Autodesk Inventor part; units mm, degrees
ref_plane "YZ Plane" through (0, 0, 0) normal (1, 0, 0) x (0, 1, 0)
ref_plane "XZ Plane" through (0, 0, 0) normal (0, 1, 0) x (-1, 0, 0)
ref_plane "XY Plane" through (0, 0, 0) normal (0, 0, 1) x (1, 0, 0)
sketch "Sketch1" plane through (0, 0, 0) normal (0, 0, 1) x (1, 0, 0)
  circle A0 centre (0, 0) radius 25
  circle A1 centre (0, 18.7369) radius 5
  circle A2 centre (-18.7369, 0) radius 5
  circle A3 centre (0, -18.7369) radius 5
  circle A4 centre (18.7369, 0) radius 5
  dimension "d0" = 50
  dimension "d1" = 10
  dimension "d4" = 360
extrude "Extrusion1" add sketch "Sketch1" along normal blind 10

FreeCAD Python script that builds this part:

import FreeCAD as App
import Part
import Sketcher
from FreeCAD import Vector
Q = App.Units.Quantity

doc = App.newDocument("Part")
body = doc.addObject("PartDesign::Body", "Body")

sketch1 = body.newObject("Sketcher::SketchObject", "Sketch")
sketch1.AttachmentSupport = (doc.getObject("XY_Plane"), [""])
sketch1.MapMode = "FlatFace"
sketch1.addGeometry(Part.Circle(Vector(0, 0, 0), Vector(0, 0, 1), 25), False)
sketch1.addGeometry(Part.Circle(Vector(0, -18.7369, 0), Vector(0, 0, 1), 5), False)
sketch1.addGeometry(Part.Circle(Vector(-18.7369, 0, 0), Vector(0, 0, 1), 5), False)
sketch1.addGeometry(Part.Circle(Vector(18.7369, 0, 0), Vector(0, 0, 1), 5), False)
sketch1.addGeometry(Part.Circle(Vector(0, 18.7369, 0), Vector(0, 0, 1), 5), False)
sketch1.addConstraint(Sketcher.Constraint("Coincident", 0, 3, -1, 1))
sketch1.addConstraint(Sketcher.Constraint("Equal", 1, 2))
sketch1.addConstraint(Sketcher.Constraint("Equal", 2, 3))
sketch1.addConstraint(Sketcher.Constraint("Equal", 3, 4))
sketch1.addConstraint(Sketcher.Constraint("Symmetric", 2, 3, 3, 3, -1, 1))
sketch1.addConstraint(Sketcher.Constraint("Symmetric", 1, 3, 4, 3, -1, 1))
sketch1.addConstraint(Sketcher.Constraint("PointOnObject", 1, 3, -2))
sketch1.addConstraint(Sketcher.Constraint("PointOnObject", 2, 3, -1))
sketch1.addConstraint(Sketcher.Constraint("Diameter", 0, Q("50 mm")))
sketch1.addConstraint(Sketcher.Constraint("Diameter", 1, Q("10 mm")))
sketch1.addConstraint(Sketcher.Constraint("DistanceY", 1, 3, -1, 1, Q("18.737 mm")))
sketch1.addConstraint(Sketcher.Constraint("DistanceX", 2, 3, -1, 1, Q("18.737 mm")))
pad1 = body.newObject("PartDesign::Pad", "Pad")
pad1.Profile = sketch1
pad1.Length = 10

doc.recompute()
